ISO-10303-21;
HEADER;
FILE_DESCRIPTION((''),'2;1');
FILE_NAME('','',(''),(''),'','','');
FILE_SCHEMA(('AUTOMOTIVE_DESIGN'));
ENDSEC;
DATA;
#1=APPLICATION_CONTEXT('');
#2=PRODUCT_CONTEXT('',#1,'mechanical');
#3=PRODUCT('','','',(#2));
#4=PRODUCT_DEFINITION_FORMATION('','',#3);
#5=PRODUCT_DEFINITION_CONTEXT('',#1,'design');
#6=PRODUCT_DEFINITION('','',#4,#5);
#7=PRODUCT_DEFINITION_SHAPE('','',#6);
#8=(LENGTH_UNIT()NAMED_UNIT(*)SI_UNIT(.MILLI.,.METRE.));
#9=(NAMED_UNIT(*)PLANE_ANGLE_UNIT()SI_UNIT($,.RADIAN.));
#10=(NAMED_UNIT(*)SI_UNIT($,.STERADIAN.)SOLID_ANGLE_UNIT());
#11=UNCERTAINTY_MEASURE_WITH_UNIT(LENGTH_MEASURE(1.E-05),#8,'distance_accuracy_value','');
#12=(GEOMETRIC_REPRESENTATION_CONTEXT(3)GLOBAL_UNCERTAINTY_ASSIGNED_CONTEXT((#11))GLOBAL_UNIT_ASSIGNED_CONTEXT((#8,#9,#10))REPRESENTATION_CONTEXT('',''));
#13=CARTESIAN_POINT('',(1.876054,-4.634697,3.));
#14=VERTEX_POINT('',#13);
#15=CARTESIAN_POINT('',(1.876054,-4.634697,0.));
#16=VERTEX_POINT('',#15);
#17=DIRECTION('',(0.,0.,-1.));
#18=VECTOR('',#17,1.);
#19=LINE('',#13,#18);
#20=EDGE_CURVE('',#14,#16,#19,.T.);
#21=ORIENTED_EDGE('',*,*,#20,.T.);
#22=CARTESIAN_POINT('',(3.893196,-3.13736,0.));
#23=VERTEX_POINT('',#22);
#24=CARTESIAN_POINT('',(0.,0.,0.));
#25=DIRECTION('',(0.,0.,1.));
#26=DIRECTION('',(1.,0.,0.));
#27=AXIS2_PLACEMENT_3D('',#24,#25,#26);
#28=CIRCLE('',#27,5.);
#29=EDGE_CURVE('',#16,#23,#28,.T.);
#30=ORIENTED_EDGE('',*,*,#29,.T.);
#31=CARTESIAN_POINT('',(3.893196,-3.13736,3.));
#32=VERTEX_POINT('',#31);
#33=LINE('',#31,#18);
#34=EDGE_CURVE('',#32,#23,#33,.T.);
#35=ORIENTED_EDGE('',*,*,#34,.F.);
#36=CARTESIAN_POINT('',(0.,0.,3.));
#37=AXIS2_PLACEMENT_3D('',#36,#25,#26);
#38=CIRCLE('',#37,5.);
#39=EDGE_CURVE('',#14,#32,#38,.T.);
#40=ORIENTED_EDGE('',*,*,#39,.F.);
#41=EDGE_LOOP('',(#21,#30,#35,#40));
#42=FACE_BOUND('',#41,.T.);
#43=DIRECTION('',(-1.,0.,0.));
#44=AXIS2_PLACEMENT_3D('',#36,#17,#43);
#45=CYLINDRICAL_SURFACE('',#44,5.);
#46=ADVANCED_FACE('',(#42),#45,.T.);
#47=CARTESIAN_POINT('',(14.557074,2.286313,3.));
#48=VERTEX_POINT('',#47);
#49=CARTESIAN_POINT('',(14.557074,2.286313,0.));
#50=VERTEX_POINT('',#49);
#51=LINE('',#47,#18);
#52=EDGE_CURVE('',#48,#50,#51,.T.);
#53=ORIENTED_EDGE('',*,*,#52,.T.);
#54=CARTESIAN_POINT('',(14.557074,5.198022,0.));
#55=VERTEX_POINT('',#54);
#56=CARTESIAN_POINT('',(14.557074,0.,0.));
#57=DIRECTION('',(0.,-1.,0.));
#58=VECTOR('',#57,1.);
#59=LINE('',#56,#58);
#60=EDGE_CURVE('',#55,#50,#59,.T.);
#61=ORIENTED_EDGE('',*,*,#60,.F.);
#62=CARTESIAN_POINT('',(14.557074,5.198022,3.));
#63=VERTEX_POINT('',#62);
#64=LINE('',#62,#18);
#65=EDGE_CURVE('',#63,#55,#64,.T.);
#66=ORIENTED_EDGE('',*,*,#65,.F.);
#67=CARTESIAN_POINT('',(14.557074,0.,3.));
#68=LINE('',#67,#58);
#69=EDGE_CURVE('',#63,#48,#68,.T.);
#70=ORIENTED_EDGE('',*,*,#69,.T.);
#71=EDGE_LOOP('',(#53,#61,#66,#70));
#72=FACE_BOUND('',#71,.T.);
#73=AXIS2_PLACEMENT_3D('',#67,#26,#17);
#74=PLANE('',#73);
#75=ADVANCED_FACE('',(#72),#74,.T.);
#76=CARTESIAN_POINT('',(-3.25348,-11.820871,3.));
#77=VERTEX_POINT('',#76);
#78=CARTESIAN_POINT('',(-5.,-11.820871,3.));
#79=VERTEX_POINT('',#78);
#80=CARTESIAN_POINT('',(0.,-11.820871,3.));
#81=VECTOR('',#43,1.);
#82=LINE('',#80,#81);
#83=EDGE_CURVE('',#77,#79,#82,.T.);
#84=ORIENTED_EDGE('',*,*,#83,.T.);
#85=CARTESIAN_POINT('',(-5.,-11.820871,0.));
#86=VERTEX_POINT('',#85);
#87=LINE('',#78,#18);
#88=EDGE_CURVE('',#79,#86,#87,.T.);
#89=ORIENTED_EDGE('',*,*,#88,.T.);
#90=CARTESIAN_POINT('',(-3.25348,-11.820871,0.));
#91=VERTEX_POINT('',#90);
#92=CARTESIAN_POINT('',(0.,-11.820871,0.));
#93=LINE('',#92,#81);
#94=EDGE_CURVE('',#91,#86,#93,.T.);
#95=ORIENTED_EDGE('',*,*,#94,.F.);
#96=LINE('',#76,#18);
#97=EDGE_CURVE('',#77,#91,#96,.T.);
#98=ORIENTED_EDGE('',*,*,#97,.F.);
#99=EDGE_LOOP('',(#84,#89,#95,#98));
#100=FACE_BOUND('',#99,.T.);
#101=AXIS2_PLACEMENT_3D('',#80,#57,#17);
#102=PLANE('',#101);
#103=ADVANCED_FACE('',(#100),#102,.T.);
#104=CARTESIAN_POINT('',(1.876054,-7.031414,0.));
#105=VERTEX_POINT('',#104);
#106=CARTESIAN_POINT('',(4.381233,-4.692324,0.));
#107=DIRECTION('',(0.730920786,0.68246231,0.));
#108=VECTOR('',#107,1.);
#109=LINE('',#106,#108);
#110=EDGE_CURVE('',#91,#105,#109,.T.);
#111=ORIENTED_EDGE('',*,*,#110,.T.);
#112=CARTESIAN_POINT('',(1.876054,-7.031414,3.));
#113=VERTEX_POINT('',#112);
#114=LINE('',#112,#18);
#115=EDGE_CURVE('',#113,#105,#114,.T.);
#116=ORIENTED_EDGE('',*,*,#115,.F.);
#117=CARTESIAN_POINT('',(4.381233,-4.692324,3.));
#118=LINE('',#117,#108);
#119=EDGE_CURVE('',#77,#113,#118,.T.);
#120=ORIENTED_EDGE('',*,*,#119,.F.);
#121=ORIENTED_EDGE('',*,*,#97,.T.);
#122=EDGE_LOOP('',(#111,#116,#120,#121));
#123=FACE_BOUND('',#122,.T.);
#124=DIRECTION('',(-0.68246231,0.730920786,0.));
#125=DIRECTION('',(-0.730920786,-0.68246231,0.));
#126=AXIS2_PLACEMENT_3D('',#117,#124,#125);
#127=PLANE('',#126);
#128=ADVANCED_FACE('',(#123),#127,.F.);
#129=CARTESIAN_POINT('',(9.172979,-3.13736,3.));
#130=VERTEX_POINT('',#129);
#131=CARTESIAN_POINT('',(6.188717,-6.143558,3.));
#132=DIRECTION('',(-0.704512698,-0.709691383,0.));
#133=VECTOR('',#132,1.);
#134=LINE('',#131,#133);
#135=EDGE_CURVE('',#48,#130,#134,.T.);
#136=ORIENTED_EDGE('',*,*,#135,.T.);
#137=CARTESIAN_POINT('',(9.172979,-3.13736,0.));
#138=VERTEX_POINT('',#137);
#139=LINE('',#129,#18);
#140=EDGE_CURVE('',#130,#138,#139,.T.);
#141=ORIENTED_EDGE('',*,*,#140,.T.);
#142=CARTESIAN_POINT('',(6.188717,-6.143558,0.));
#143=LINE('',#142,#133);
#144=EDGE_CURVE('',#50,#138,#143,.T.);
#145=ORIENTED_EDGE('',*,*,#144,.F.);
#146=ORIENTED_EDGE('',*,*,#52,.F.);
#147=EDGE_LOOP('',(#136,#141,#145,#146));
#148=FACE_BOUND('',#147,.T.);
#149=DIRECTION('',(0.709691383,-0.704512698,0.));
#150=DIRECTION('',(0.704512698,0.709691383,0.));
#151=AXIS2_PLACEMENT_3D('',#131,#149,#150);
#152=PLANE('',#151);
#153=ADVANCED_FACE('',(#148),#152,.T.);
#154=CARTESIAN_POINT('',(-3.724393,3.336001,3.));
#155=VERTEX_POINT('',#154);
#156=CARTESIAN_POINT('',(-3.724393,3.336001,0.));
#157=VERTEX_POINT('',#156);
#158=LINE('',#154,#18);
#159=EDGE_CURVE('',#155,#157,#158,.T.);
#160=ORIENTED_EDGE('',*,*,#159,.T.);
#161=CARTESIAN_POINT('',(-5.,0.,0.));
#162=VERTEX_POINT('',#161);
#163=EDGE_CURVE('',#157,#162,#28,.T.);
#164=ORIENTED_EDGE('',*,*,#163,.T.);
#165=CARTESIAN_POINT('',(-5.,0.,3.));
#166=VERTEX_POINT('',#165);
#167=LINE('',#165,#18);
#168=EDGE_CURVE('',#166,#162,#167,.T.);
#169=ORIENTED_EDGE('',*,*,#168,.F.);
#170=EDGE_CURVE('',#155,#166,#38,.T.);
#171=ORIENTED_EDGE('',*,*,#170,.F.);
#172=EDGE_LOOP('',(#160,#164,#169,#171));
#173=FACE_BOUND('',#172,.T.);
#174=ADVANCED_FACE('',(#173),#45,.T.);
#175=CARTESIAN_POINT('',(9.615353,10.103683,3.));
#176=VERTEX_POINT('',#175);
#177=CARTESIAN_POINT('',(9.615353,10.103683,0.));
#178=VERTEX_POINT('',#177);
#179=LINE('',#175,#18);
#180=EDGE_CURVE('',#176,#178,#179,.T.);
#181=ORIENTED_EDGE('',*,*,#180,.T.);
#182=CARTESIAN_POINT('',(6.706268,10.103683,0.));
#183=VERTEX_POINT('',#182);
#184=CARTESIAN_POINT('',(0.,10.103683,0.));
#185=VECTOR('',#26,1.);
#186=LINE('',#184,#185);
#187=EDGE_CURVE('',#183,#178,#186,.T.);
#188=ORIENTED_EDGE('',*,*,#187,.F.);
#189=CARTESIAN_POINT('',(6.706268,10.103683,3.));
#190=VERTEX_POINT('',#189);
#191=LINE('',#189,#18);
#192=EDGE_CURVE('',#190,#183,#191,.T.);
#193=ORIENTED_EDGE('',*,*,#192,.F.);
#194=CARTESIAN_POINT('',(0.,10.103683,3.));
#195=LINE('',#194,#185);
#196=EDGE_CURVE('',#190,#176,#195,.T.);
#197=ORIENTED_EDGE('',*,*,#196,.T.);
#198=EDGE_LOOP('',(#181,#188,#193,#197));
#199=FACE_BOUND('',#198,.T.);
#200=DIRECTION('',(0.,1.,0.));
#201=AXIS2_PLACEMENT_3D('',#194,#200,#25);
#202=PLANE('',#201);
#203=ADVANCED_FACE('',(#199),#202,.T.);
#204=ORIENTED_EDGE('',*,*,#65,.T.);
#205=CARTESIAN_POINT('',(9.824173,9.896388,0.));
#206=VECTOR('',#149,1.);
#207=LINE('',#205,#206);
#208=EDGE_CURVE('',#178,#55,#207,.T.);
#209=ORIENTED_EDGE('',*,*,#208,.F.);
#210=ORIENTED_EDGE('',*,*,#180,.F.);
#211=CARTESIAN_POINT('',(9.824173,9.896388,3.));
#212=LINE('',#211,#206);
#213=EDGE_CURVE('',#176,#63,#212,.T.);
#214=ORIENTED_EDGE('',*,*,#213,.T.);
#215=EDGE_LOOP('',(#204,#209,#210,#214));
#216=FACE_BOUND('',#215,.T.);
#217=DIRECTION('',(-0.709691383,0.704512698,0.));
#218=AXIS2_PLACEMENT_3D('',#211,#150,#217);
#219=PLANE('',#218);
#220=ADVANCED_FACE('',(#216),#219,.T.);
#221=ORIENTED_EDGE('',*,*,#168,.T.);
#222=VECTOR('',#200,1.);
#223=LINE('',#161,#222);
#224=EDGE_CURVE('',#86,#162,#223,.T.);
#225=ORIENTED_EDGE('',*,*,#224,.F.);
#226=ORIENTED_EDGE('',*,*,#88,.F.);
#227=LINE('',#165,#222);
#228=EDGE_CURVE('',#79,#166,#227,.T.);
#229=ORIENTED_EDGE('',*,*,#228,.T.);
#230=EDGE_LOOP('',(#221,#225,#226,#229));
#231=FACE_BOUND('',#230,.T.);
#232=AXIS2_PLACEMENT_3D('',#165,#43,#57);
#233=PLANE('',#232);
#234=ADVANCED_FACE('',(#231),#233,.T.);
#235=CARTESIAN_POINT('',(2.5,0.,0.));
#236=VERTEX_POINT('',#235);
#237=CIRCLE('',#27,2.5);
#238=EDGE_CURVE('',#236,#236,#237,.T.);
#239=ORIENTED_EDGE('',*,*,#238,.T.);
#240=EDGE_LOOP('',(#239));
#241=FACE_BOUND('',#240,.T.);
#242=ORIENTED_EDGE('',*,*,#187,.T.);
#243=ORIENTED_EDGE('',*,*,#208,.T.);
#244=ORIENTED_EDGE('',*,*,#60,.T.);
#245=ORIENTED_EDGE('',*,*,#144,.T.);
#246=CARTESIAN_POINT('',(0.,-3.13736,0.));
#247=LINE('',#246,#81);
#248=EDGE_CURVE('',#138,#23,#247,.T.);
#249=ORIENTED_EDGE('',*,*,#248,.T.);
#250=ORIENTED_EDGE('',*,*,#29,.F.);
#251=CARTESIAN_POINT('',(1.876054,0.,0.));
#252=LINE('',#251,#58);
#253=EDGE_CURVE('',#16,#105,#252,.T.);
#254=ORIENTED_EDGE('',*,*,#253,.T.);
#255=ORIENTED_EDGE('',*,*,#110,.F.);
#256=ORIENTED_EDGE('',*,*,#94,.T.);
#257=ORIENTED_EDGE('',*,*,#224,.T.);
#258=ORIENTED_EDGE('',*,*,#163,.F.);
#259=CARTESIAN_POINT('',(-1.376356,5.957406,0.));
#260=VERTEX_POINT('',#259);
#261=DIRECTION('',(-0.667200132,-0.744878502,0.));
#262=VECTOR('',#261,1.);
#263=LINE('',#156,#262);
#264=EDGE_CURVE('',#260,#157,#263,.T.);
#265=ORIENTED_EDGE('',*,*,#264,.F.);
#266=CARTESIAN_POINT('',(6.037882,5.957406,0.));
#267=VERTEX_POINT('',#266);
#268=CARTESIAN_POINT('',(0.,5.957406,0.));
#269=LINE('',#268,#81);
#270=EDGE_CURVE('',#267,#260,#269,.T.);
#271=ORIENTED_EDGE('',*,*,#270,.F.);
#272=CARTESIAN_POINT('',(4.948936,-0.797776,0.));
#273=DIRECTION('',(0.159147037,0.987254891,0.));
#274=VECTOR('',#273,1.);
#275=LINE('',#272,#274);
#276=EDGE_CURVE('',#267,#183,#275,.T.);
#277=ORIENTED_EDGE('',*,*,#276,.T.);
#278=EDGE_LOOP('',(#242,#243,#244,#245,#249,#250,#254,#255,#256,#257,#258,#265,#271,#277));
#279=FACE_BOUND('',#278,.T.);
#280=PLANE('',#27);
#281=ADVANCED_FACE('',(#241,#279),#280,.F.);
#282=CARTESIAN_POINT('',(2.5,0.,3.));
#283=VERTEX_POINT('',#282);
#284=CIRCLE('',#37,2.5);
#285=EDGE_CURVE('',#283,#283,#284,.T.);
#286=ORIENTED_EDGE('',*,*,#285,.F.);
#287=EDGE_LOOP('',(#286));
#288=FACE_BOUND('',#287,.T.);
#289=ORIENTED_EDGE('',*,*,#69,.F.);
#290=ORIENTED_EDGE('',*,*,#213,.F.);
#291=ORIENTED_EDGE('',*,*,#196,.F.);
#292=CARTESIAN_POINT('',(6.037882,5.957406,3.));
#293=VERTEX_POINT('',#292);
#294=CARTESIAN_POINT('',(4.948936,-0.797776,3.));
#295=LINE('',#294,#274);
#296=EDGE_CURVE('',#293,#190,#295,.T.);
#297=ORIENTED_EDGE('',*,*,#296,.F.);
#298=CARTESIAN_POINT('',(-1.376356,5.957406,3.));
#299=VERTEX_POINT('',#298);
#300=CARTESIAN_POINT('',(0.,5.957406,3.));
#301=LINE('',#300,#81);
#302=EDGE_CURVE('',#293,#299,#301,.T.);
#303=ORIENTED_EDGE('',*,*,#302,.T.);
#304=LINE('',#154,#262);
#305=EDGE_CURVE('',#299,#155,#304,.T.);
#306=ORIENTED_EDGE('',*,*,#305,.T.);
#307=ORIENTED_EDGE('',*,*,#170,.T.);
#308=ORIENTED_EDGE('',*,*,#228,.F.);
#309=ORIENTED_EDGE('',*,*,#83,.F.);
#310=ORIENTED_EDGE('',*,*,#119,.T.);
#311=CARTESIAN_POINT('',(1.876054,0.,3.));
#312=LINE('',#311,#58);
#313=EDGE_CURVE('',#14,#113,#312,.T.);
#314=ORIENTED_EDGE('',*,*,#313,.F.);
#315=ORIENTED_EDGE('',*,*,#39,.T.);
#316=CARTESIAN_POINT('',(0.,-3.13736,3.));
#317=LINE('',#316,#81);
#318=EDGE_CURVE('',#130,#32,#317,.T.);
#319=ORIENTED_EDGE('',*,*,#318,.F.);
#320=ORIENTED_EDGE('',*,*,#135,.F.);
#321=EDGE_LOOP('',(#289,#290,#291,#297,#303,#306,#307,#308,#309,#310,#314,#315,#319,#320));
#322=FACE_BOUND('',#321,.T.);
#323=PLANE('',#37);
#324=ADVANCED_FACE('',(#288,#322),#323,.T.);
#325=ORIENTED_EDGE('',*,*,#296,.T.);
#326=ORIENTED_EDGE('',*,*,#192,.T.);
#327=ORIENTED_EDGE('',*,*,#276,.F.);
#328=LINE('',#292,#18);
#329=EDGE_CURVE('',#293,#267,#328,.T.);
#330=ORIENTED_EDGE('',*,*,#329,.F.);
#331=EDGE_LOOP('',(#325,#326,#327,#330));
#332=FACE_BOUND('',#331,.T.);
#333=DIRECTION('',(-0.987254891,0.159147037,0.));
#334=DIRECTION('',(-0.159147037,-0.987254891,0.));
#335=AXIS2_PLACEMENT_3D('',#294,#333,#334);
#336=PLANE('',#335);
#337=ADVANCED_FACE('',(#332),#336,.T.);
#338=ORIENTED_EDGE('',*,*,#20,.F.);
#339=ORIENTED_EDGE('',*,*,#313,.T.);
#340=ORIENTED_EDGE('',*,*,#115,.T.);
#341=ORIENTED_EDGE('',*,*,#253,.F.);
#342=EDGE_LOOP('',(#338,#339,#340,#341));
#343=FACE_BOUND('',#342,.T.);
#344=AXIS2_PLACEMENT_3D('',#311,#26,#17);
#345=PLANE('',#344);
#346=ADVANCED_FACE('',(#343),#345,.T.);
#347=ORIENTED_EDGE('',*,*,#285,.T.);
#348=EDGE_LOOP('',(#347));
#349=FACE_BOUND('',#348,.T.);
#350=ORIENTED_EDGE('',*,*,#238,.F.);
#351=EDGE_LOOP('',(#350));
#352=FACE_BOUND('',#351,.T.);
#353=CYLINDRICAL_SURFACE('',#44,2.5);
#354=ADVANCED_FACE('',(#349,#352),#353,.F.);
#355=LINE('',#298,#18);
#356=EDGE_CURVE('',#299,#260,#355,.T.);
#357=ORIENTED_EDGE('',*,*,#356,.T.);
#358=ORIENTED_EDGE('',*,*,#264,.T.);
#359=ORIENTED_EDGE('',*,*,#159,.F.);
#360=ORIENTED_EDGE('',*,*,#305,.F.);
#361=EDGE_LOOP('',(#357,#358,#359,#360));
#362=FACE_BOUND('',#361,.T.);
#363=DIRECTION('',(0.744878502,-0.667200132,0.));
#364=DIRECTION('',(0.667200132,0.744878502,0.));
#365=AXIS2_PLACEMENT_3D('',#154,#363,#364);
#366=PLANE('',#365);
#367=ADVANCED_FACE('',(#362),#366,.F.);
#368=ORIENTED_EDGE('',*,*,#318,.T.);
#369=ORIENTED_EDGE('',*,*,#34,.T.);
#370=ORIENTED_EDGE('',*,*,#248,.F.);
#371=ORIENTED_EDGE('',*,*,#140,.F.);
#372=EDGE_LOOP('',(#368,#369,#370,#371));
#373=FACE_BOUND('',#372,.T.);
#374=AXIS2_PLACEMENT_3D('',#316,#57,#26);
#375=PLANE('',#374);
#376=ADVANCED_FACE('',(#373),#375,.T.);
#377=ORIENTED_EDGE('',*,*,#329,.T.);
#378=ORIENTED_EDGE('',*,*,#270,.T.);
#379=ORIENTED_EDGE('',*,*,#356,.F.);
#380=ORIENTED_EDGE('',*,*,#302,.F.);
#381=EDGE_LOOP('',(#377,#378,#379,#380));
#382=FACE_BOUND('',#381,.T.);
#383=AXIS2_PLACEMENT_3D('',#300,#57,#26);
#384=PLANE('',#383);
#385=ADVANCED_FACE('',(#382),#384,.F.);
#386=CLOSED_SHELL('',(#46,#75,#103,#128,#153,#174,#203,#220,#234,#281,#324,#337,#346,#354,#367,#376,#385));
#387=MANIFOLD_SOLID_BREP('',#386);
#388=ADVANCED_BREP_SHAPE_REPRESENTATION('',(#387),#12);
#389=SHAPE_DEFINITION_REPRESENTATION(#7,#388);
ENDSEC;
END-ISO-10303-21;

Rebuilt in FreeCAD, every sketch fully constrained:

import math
import FreeCAD as App
import Part
import Sketcher

V = App.Vector

doc = App.newDocument("Part")
params = doc.addObject("Spreadsheet::Sheet", "Params")
for row, (alias, value) in enumerate([
    ("sketch1_diameter", "5 mm"),
    ("sketch1_radius", "5 mm"),
    ("pad1_length", "3 mm"),
], start=1):
    params.set(f"A{row}", alias)
    params.set(f"B{row}", "=" + value)
    params.setAlias(f"B{row}", alias)

body = doc.addObject("PartDesign::Body", "Body")

# Sketch on XY plane
sketch1 = body.newObject("Sketcher::SketchObject", "Sketch")
sketch1.AttachmentSupport = (doc.getObject("XY_Plane"), [""])
sketch1.MapMode = "FlatFace"
sketch1.addGeometry([
    Part.LineSegment(V(6.706268, 10.103683, 0), V(6.037882, 5.957406, 0)),  # 0
    Part.LineSegment(V(6.037882, 5.957406, 0), V(-1.376356, 5.957406, 0)),  # 1
    Part.LineSegment(V(-1.376356, 5.957406, 0), V(-3.724393, 3.336001, 0)),  # 2
    Part.ArcOfCircle(Part.Circle(V(0, 0, 0), V(0, 0, 1), 5), math.radians(138.148664), math.radians(180)),  # 3
    Part.LineSegment(V(-5, 0, 0), V(-5, -11.820871, 0)),  # 4
    Part.LineSegment(V(-5, -11.820871, 0), V(-3.25348, -11.820871, 0)),  # 5
    Part.LineSegment(V(-3.25348, -11.820871, 0), V(1.876054, -7.031414, 0)),  # 6
    Part.LineSegment(V(1.876054, -7.031414, 0), V(1.876054, -4.634697, 0)),  # 7
    Part.ArcOfCircle(Part.Circle(V(0, 0, 0), V(0, 0, 1), 5), math.radians(-67.962652), math.radians(-38.863857)),  # 8
    Part.LineSegment(V(3.893196, -3.13736, 0), V(9.172979, -3.13736, 0)),  # 9
    Part.LineSegment(V(9.172979, -3.13736, 0), V(14.557074, 2.286313, 0)),  # 10
    Part.LineSegment(V(14.557074, 2.286313, 0), V(14.557074, 5.198022, 0)),  # 11
    Part.LineSegment(V(14.557074, 5.198022, 0), V(9.615353, 10.103683, 0)),  # 12
    Part.LineSegment(V(9.615353, 10.103683, 0), V(6.706268, 10.103683, 0)),  # 13
    Part.Circle(V(0, 0, 0), V(0, 0, 1), 2.5),  # 14
], False)
sketch1.addConstraint([
    Sketcher.Constraint("Coincident", 0, 2, 1, 1),
    Sketcher.Constraint("Coincident", 1, 2, 2, 1),
    Sketcher.Constraint("Tangent", 2, 2, 3, 1),
    Sketcher.Constraint("Tangent", 3, 2, 4, 1),
    Sketcher.Constraint("Coincident", 4, 2, 5, 1),
    Sketcher.Constraint("Coincident", 5, 2, 6, 1),
    Sketcher.Constraint("Coincident", 6, 2, 7, 1),
    Sketcher.Constraint("Coincident", 7, 2, 8, 1),
    Sketcher.Constraint("Coincident", 8, 2, 9, 1),
    Sketcher.Constraint("Coincident", 9, 2, 10, 1),
    Sketcher.Constraint("Coincident", 10, 2, 11, 1),
    Sketcher.Constraint("Coincident", 11, 2, 12, 1),
    Sketcher.Constraint("Coincident", 12, 2, 13, 1),
    Sketcher.Constraint("Coincident", 13, 2, 0, 1),
    Sketcher.Constraint("Horizontal", 1),
    Sketcher.Constraint("Vertical", 4),
    Sketcher.Constraint("Horizontal", 5),
    Sketcher.Constraint("Vertical", 7),
    Sketcher.Constraint("Horizontal", 9),
    Sketcher.Constraint("Vertical", 11),
    Sketcher.Constraint("Horizontal", 13),
    Sketcher.Constraint("Coincident", 3, 3, -1, 1),
    Sketcher.Constraint("Coincident", 8, 3, -1, 1),
    Sketcher.Constraint("Coincident", 14, 3, -1, 1),
    Sketcher.Constraint("Equal", 3, 8),
    Sketcher.Constraint("Perpendicular", 10, 12),
    Sketcher.Constraint("Diameter", 14, 5.0),
    Sketcher.Constraint("Radius", 3, 5.0),
    Sketcher.Constraint("DistanceY", -1, 1, 2, 2, 3.336001),
    Sketcher.Constraint("DistanceX", 5, 1, 5, 2, 1.74652),
    Sketcher.Constraint("DistanceY", 4, 2, 4, 1, 11.820871),
    Sketcher.Constraint("DistanceY", 11, 1, 11, 2, 2.91171),
    Sketcher.Constraint("Distance", 2, 3.519239),
    Sketcher.Constraint("DistanceX", 1, 2, 1, 1, 7.414238),
    Sketcher.Constraint("DistanceX", 9, 1, 9, 2, 5.279783),
    Sketcher.Constraint("DistanceX", 13, 2, 13, 1, 2.909085),
    Sketcher.Constraint("DistanceY", 7, 1, 7, 2, 2.396717),
    Sketcher.Constraint("DistanceY", 8, 2, -1, 1, 3.13736),
    Sketcher.Constraint("DistanceX", -1, 1, 13, 2, 6.706268),
    Sketcher.Constraint("DistanceX", 7, 2, 8, 2, 2.017141),
    Sketcher.Constraint("DistanceX", 8, 2, 10, 2, 10.663879),
    Sketcher.Constraint("DistanceY", 7, 2, 10, 2, 6.92101),
])
sketch1.setExpression("Constraints[26]", "Params.sketch1_diameter")
sketch1.setExpression("Constraints[27]", "Params.sketch1_radius")
pad1 = body.newObject("PartDesign::Pad", "Pad")
pad1.Profile = sketch1
pad1.setExpression("Length", "Params.pad1_length")

doc.recompute()
